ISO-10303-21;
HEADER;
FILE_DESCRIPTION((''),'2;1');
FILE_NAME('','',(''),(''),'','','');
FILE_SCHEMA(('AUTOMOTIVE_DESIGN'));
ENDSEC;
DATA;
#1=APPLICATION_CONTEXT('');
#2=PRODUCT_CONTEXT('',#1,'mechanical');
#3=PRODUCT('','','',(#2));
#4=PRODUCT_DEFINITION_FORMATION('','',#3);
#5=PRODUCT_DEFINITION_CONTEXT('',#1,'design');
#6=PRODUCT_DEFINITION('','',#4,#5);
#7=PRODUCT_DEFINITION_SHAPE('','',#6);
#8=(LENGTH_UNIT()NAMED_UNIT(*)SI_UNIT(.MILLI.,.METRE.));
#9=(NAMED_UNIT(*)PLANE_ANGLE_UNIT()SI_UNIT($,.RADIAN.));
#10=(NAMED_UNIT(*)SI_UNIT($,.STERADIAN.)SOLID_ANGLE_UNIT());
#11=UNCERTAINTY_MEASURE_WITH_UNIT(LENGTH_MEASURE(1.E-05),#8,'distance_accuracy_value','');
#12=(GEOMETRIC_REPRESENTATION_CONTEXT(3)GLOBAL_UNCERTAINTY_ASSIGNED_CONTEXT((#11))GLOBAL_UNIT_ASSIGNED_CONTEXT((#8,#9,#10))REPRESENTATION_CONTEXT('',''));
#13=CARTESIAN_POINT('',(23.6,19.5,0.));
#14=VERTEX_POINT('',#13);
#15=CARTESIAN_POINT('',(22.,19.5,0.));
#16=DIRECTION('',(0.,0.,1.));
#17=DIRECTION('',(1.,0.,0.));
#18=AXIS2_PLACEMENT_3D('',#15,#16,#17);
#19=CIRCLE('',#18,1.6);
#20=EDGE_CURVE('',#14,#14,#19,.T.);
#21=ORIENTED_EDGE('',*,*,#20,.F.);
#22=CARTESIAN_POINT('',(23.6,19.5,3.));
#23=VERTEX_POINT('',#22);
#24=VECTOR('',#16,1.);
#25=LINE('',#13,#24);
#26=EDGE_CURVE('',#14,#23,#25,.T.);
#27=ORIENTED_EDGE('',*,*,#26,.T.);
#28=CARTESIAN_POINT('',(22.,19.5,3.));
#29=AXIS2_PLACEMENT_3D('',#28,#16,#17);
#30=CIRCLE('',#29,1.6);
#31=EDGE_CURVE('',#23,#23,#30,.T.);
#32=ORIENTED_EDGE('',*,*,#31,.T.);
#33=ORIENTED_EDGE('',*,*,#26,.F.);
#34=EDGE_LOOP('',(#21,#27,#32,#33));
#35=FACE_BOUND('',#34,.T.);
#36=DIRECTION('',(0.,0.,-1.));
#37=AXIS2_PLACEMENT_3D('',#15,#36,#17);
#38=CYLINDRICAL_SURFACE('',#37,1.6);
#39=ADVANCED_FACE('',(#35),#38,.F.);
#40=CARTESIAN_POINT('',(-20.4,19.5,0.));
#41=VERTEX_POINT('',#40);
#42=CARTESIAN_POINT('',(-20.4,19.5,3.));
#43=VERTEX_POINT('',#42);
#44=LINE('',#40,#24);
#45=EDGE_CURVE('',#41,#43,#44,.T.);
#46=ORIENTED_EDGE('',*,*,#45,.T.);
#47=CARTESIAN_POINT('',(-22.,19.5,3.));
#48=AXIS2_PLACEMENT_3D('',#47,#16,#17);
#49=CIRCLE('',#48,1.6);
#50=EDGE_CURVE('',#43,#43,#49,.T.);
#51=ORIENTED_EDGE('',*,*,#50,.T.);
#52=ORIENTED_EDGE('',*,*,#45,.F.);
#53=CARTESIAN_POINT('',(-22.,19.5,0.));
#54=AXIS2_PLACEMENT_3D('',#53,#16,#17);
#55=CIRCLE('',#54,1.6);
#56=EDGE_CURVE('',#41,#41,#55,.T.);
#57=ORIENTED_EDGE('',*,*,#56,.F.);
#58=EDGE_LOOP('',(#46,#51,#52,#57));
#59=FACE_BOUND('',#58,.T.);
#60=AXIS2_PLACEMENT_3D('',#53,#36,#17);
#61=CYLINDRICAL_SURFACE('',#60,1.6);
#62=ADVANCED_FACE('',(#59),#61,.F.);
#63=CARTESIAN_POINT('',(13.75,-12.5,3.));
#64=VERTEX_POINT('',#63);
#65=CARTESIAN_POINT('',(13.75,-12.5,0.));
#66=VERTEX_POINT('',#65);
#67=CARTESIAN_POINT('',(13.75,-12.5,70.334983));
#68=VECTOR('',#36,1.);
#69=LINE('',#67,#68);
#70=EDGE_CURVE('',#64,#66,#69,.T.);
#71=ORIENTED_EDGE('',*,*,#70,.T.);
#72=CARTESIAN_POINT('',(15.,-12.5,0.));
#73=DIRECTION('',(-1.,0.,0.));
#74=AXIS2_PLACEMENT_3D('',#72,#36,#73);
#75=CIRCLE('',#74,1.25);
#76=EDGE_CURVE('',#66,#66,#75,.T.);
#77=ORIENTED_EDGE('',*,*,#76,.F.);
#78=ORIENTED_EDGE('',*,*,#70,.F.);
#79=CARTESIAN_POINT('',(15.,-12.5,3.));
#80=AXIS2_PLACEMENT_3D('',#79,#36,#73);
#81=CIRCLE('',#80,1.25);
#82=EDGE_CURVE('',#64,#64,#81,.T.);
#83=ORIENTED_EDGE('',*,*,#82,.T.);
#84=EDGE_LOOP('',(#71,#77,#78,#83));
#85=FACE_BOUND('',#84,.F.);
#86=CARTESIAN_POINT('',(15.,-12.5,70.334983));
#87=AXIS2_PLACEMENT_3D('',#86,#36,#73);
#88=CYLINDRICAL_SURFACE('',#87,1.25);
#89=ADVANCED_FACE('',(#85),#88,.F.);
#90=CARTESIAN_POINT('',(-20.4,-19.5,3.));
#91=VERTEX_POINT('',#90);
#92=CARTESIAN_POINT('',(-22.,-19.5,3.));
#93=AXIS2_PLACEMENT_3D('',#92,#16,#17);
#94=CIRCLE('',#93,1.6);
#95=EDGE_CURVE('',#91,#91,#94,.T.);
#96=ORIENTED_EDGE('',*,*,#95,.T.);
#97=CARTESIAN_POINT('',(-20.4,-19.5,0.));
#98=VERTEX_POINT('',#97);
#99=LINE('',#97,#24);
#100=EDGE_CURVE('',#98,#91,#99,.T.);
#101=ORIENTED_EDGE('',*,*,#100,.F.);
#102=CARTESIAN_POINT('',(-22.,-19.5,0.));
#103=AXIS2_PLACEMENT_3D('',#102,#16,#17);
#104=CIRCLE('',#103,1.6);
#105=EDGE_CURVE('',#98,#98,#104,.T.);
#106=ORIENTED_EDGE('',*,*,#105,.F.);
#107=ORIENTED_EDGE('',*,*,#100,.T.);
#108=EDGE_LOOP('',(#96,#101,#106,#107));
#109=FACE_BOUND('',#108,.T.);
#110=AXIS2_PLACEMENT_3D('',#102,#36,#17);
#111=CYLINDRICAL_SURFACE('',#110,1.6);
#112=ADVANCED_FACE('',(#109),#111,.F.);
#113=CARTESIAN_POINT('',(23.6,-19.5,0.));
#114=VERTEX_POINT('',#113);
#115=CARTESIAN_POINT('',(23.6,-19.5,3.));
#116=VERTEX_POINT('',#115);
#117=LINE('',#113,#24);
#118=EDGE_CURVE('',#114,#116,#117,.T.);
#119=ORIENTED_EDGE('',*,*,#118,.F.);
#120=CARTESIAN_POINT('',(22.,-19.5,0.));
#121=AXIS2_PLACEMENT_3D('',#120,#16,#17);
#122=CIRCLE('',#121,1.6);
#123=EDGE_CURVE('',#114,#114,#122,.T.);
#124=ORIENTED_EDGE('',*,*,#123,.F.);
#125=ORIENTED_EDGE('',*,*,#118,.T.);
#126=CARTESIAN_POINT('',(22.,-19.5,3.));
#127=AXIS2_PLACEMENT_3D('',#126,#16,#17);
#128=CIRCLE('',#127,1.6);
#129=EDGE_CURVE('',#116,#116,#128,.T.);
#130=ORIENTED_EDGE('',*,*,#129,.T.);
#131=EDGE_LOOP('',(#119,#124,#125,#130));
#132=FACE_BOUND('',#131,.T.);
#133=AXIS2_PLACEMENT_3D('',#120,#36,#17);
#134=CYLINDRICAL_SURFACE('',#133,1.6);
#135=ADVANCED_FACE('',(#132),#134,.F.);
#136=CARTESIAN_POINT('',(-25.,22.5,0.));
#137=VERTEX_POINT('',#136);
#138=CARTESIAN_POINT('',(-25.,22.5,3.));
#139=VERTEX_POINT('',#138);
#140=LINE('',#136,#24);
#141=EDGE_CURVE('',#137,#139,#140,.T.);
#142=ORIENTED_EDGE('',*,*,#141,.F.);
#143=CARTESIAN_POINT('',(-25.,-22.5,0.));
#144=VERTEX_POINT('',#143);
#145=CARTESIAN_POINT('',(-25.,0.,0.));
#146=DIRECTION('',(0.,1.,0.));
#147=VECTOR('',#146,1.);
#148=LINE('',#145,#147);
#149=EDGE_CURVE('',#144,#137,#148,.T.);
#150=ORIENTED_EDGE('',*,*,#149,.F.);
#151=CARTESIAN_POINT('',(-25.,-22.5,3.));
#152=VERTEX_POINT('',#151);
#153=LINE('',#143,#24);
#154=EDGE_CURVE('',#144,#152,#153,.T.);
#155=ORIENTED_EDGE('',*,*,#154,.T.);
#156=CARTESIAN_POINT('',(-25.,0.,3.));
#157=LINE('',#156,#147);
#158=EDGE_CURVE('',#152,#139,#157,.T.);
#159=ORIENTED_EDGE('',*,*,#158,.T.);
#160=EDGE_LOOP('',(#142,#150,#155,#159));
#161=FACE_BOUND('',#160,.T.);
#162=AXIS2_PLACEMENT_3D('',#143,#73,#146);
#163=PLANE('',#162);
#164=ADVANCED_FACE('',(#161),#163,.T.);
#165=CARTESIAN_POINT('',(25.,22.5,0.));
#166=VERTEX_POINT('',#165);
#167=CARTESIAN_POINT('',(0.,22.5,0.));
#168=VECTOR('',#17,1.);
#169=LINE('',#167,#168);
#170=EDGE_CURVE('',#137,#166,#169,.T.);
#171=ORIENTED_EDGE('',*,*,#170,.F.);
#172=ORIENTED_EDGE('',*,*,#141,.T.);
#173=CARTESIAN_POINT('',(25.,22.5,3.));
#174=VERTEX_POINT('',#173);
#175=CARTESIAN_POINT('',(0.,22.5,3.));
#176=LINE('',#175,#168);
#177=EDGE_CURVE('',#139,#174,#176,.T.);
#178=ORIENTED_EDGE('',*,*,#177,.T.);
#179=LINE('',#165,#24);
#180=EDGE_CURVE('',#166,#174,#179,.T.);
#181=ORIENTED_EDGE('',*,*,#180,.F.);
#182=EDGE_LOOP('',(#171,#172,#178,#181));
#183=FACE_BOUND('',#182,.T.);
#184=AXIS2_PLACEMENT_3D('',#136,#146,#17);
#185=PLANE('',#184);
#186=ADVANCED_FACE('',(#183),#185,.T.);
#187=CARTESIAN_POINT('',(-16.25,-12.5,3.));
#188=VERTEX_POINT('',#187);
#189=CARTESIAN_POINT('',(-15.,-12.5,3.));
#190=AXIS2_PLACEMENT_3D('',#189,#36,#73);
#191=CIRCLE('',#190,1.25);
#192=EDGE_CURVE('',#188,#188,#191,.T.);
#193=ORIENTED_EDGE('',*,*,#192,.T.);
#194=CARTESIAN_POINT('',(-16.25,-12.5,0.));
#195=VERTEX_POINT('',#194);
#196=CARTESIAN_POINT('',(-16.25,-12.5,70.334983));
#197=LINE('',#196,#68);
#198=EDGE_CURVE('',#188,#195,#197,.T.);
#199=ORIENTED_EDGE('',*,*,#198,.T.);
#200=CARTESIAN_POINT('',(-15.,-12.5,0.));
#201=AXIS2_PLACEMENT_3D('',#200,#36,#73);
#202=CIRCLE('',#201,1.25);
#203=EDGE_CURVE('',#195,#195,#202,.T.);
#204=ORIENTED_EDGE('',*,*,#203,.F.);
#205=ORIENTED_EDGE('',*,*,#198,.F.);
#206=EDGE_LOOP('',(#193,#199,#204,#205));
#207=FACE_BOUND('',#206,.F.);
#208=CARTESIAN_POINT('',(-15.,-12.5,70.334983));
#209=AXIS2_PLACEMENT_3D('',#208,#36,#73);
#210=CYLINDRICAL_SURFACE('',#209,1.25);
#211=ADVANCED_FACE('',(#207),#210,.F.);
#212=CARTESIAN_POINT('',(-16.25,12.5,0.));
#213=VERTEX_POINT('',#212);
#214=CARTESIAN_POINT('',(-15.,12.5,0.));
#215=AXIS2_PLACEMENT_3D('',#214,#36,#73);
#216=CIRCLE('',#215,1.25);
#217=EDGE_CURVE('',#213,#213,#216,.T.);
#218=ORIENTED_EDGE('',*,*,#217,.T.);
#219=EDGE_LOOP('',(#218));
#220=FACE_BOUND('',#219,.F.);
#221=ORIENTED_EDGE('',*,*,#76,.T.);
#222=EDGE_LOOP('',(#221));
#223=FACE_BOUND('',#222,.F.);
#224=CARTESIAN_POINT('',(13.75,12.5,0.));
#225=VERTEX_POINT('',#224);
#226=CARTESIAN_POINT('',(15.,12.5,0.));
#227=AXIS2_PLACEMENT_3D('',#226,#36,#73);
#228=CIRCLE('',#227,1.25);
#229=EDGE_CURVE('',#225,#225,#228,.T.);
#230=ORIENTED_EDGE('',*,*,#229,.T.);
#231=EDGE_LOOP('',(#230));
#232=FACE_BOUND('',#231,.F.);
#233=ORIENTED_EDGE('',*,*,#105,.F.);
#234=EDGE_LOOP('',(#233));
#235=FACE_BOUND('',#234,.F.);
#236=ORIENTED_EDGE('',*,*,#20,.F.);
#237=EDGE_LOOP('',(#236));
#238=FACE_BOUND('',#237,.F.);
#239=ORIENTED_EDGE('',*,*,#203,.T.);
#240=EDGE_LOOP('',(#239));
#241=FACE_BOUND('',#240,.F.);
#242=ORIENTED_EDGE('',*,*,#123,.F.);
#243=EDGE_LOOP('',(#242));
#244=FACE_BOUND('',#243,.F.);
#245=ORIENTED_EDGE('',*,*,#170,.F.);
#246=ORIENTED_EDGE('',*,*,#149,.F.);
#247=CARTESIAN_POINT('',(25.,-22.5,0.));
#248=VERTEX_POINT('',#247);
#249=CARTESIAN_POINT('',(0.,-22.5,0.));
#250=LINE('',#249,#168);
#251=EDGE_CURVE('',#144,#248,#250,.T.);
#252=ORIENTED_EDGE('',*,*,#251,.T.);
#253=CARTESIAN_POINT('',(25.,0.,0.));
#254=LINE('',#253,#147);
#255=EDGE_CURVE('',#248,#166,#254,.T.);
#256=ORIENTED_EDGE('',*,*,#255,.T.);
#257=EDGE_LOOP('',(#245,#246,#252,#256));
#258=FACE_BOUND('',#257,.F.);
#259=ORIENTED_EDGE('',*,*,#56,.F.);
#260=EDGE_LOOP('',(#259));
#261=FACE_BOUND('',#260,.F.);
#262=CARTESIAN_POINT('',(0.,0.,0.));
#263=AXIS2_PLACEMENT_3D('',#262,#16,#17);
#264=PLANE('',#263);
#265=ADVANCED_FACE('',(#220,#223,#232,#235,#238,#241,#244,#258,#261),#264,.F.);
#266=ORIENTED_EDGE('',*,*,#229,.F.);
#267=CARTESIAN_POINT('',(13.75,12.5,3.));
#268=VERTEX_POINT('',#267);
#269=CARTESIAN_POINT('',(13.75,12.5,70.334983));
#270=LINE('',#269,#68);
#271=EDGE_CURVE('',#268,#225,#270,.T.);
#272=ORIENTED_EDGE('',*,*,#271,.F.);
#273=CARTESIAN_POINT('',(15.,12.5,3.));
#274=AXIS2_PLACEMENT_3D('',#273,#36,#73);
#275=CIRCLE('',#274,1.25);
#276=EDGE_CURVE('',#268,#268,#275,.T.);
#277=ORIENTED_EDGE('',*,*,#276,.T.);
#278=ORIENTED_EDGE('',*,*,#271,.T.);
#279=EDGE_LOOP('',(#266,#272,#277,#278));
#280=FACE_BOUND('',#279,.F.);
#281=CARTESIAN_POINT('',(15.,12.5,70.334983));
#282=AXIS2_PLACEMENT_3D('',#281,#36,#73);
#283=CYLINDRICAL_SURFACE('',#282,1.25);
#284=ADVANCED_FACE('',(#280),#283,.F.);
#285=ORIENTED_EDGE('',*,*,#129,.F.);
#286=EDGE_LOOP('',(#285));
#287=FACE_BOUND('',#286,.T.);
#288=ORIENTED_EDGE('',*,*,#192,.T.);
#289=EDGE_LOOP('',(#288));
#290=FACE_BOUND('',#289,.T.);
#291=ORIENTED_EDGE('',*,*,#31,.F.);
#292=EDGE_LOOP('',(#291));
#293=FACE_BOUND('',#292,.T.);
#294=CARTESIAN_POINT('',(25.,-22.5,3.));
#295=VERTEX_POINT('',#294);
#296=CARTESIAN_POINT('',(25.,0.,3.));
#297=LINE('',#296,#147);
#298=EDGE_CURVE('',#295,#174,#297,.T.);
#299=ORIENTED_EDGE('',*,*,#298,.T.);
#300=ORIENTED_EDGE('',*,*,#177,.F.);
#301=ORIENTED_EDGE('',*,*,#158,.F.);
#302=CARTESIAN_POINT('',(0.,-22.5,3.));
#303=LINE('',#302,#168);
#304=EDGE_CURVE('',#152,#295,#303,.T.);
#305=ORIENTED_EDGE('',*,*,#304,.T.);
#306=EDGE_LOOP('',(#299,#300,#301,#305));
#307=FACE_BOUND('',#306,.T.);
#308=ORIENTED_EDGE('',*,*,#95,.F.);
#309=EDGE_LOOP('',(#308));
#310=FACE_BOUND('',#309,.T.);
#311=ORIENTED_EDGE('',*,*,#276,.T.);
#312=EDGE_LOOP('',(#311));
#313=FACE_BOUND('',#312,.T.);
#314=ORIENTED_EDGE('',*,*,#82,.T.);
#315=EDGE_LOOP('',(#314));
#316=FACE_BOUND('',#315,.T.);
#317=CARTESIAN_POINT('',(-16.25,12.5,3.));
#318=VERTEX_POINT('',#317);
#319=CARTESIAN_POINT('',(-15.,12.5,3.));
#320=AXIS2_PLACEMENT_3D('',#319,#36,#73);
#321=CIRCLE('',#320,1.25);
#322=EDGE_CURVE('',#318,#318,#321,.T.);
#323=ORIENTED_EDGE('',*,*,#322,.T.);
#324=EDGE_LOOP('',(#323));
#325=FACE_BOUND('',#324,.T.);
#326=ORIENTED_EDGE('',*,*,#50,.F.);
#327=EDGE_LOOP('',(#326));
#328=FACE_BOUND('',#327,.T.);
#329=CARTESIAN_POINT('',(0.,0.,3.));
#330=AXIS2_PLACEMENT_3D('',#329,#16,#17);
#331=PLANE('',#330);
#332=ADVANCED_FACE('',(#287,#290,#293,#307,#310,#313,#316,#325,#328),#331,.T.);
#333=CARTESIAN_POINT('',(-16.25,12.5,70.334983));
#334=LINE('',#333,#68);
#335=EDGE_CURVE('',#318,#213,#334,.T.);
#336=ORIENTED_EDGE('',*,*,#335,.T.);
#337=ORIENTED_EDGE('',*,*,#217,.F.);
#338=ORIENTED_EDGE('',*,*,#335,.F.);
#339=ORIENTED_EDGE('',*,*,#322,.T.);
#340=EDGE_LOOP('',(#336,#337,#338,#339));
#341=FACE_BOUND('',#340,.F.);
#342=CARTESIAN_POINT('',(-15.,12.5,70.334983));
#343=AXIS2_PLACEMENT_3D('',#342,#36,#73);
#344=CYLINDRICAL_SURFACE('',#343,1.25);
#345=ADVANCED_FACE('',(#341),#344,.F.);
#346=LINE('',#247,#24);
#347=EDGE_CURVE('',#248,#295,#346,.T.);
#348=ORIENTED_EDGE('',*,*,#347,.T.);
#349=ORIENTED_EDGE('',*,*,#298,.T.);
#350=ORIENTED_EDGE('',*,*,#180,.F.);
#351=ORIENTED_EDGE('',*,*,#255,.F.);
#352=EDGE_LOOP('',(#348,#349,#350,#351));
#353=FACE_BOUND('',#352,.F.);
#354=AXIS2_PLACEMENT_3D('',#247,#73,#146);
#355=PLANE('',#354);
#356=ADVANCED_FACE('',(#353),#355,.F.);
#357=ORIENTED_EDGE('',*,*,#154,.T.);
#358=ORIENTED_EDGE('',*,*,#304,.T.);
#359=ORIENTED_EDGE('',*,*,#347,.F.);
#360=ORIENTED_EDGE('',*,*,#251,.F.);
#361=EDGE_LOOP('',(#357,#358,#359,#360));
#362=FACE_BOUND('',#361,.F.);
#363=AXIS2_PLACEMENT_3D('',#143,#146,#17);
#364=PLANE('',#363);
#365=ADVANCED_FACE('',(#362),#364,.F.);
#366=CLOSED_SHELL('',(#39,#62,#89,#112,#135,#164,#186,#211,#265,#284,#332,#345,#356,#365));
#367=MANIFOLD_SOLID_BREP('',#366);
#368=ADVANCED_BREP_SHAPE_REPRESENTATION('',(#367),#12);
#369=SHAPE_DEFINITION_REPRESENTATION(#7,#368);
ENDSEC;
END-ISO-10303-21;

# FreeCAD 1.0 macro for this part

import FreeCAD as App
import Part
import Sketcher
from FreeCAD import Vector
Q = App.Units.Quantity


def add_polygon(sketch, points):
    """Adds a closed chain of lines whose ends are joined by coincident constraints."""
    first, n = sketch.GeometryCount, len(points)
    for a, b in zip(points, points[1:] + points[:1]):
        sketch.addGeometry(Part.LineSegment(App.Vector(*a, 0), App.Vector(*b, 0)), False)
    for i in range(n):
        sketch.addConstraint(Sketcher.Constraint("Coincident", first + i, 2, first + (i + 1) % n, 1))

doc = App.newDocument("Part")
body = doc.addObject("PartDesign::Body", "Body")

sketch1 = body.newObject("Sketcher::SketchObject", "Sketch")
sketch1.AttachmentSupport = (doc.getObject("XY_Plane"), [""])
sketch1.MapMode = "FlatFace"
add_polygon(sketch1, [(-25, 22.5), (-25, -22.5), (25, -22.5), (25, 22.5)])
sketch1.addGeometry(Part.Circle(Vector(-22, -19.5, 0), Vector(0, 0, 1), 1.6), False)
sketch1.addGeometry(Part.Circle(Vector(22, -19.5, 0), Vector(0, 0, 1), 1.6), False)
sketch1.addGeometry(Part.Circle(Vector(-22, 19.5, 0), Vector(0, 0, 1), 1.6), False)
sketch1.addGeometry(Part.Circle(Vector(22, 19.5, 0), Vector(0, 0, 1), 1.6), False)
sketch1.addConstraint([
    Sketcher.Constraint("Vertical", 0),
    Sketcher.Constraint("Horizontal", 1),
    Sketcher.Constraint("Vertical", 2),
    Sketcher.Constraint("Horizontal", 3),
    Sketcher.Constraint("Equal", 4, 5),
    Sketcher.Constraint("Equal", 5, 6),
    Sketcher.Constraint("Equal", 6, 7),
    Sketcher.Constraint("Symmetric", 5, 3, 6, 3, -1, 1),
    Sketcher.Constraint("Symmetric", 4, 3, 7, 3, -1, 1),
    Sketcher.Constraint("Symmetric", 0, 2, 2, 2, -1, 1),
    Sketcher.Constraint("Symmetric", 4, 3, 5, 3, -2),
    Sketcher.Constraint("Diameter", 4, Q("3.2 mm")),
    Sketcher.Constraint("DistanceX", 1, 1, 1, 2, Q("50 mm")),
    Sketcher.Constraint("DistanceY", 0, 2, 0, 1, Q("45 mm")),
    Sketcher.Constraint("DistanceX", 4, 3, -1, 1, Q("22 mm")),
    Sketcher.Constraint("DistanceY", 4, 3, 6, 3, Q("39 mm")),
])
pad1 = body.newObject("PartDesign::Pad", "Pad")
pad1.Profile = sketch1
pad1.Length = 3

sketch2 = body.newObject("Sketcher::SketchObject", "Sketch001")
sketch2.AttachmentSupport = (doc.getObject("XY_Plane"), [""])
sketch2.MapMode = "FlatFace"
sketch2.AttachmentOffset = App.Placement(Vector(0, 0, 3), App.Rotation())
sketch2.addGeometry([
    Part.Circle(Vector(-15, 12.5, 0), Vector(0, 0, 1), 1.25),
    Part.Circle(Vector(15, 12.5, 0), Vector(0, 0, 1), 1.25),
    Part.Circle(Vector(15, -12.5, 0), Vector(0, 0, 1), 1.25),
    Part.Circle(Vector(-15, -12.5, 0), Vector(0, 0, 1), 1.25),
], False)
sketch2.addConstraint([
    Sketcher.Constraint("Equal", 0, 1),
    Sketcher.Constraint("Equal", 1, 2),
    Sketcher.Constraint("Equal", 2, 3),
    Sketcher.Constraint("Symmetric", 0, 3, 2, 3, -1, 1),
    Sketcher.Constraint("Symmetric", 1, 3, 3, 3, -1, 1),
    Sketcher.Constraint("Symmetric", 0, 3, 1, 3, -2),
    Sketcher.Constraint("Diameter", 0, Q("2.5 mm")),
    Sketcher.Constraint("DistanceX", 0, 3, -1, 1, Q("15 mm")),
    Sketcher.Constraint("DistanceY", 2, 3, 1, 3, Q("25 mm")),
])
doc.recompute()
hole = body.newObject("PartDesign::Hole", "Hole")
hole.Profile = sketch2
hole.ThreadType = "None"
hole.Diameter = 2.5
hole.DepthType = "ThroughAll"

doc.recompute()
